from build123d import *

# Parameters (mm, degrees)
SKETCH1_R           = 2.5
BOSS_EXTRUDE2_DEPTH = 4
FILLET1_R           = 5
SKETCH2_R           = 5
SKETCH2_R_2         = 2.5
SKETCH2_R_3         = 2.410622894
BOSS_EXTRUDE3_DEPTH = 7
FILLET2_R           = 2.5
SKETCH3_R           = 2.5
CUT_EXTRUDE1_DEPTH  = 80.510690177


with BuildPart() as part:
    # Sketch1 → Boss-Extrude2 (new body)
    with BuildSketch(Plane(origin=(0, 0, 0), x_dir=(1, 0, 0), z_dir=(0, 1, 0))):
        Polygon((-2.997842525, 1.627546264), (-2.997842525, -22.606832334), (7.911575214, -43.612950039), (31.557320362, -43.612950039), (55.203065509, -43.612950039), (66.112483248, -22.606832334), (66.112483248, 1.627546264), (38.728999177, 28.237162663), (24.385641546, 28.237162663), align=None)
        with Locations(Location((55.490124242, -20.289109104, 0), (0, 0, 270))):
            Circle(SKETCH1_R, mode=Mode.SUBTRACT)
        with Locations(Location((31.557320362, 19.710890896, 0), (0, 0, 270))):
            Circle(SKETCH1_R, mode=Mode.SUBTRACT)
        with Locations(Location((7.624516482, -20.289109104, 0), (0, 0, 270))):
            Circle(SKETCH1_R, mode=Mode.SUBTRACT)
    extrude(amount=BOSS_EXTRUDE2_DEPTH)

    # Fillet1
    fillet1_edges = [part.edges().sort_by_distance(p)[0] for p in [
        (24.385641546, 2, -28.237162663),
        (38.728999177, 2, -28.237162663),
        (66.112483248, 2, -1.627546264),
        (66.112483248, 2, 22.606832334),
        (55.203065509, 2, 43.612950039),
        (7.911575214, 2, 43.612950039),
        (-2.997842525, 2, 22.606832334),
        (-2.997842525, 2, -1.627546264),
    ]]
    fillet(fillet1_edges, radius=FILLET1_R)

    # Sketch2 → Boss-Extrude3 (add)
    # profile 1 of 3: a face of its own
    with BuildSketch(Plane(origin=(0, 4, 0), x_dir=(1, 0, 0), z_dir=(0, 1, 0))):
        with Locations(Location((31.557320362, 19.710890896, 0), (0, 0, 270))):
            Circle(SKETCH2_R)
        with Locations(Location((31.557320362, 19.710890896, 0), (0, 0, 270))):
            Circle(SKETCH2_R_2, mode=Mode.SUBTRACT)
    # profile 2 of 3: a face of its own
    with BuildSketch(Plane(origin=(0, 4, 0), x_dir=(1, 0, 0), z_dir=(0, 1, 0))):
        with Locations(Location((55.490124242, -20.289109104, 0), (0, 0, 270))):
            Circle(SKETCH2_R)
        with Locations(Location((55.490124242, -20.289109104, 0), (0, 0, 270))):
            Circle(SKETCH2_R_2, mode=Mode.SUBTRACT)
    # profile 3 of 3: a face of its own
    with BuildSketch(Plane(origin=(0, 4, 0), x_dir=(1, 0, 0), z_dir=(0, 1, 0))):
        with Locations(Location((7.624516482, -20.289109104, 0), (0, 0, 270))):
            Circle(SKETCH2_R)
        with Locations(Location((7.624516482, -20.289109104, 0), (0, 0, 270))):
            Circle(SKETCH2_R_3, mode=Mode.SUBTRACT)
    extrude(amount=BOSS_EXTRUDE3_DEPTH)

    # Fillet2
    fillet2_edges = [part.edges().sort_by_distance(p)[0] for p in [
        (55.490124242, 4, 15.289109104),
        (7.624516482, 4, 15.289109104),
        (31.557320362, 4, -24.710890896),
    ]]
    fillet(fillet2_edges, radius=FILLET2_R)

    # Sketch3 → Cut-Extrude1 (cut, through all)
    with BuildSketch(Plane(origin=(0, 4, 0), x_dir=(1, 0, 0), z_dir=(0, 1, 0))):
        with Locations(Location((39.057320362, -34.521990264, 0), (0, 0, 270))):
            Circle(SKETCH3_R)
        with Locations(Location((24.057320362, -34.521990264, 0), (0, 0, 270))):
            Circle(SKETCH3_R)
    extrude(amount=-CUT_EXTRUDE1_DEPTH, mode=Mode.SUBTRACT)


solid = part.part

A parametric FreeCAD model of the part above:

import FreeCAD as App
import Part
import Sketcher

V = App.Vector


def edges_at(feature, points):
    """Names of the edges that pass closest to the given points."""
    edges = feature.Shape.Edges
    near = lambda p: min(range(len(edges)), key=lambda i: edges[i].distToShape(Part.Vertex(*p))[0])
    return sorted({f"Edge{near(p) + 1}" for p in points})

doc = App.newDocument("Part")
body = doc.addObject("PartDesign::Body", "Body")

sketch1 = body.newObject("Sketcher::SketchObject", "Sketch")
sketch1.AttachmentSupport = (doc.getObject("XZ_Plane"), [""])
sketch1.MapMode = "FlatFace"
sketch1.addGeometry(Part.LineSegment(V(-2.997843, -1.627546, 0), V(-2.997843, 22.606832, 0)), False)
sketch1.addGeometry(Part.LineSegment(V(-2.997843, 22.606832, 0), V(7.911575, 43.61295, 0)), False)
sketch1.addGeometry(Part.LineSegment(V(7.911575, 43.61295, 0), V(55.203066, 43.61295, 0)), False)
sketch1.addGeometry(Part.LineSegment(V(55.203066, 43.61295, 0), V(66.112483, 22.606832, 0)), False)
sketch1.addGeometry(Part.LineSegment(V(66.112483, 22.606832, 0), V(66.112483, -1.627546, 0)), False)
sketch1.addGeometry(Part.LineSegment(V(66.112483, -1.627546, 0), V(38.728999, -28.237163, 0)), False)
sketch1.addGeometry(Part.LineSegment(V(38.728999, -28.237163, 0), V(24.385642, -28.237163, 0)), False)
sketch1.addGeometry(Part.LineSegment(V(24.385642, -28.237163, 0), V(-2.997843, -1.627546, 0)), False)
sketch1.addGeometry(Part.Circle(V(7.624516, 20.289109, 0), V(0, 0, 1), 2.5), False)
sketch1.addGeometry(Part.Circle(V(55.490124, 20.289109, 0), V(0, 0, 1), 2.5), False)
sketch1.addGeometry(Part.Circle(V(31.55732, -19.710891, 0), V(0, 0, 1), 2.5), False)
sketch1.addConstraint(Sketcher.Constraint("Coincident", 0, 2, 1, 1))
sketch1.addConstraint(Sketcher.Constraint("Coincident", 1, 2, 2, 1))
sketch1.addConstraint(Sketcher.Constraint("Coincident", 2, 2, 3, 1))
sketch1.addConstraint(Sketcher.Constraint("Coincident", 3, 2, 4, 1))
sketch1.addConstraint(Sketcher.Constraint("Coincident", 4, 2, 5, 1))
sketch1.addConstraint(Sketcher.Constraint("Coincident", 5, 2, 6, 1))
sketch1.addConstraint(Sketcher.Constraint("Coincident", 6, 2, 7, 1))
sketch1.addConstraint(Sketcher.Constraint("Coincident", 7, 2, 0, 1))
sketch1.addConstraint(Sketcher.Constraint("Vertical", 0))
sketch1.addConstraint(Sketcher.Constraint("Horizontal", 2))
sketch1.addConstraint(Sketcher.Constraint("Vertical", 4))
sketch1.addConstraint(Sketcher.Constraint("Horizontal", 6))
sketch1.addConstraint(Sketcher.Constraint("Equal", 8, 9))
sketch1.addConstraint(Sketcher.Constraint("Equal", 9, 10))
sketch1.addConstraint(Sketcher.Constraint("Horizontal", 8, 3, 9, 3))
sketch1.addConstraint(Sketcher.Constraint("Horizontal", 0, 2, 3, 2))
sketch1.addConstraint(Sketcher.Constraint("Horizontal", 4, 2, 7, 2))
sketch1.addConstraint(Sketcher.Constraint("Equal", 1, 3))
sketch1.addConstraint(Sketcher.Constraint("Equal", 5, 7))
sketch1.addConstraint(Sketcher.Constraint("Diameter", 8, 5.0))
sketch1.addConstraint(Sketcher.Constraint("DistanceY", 10, 3, 8, 3, 40.0))
sketch1.addConstraint(Sketcher.Constraint("DistanceX", -1, 1, 5, 2, 38.728999))
sketch1.addConstraint(Sketcher.Constraint("DistanceX", 2, 1, 2, 2, 47.29149))
sketch1.addConstraint(Sketcher.Constraint("DistanceY", 0, 1, 0, 2, 24.234379))
sketch1.addConstraint(Sketcher.Constraint("Distance", 5, 38.182809))
sketch1.addConstraint(Sketcher.Constraint("DistanceX", 6, 2, 6, 1, 14.343358))
sketch1.addConstraint(Sketcher.Constraint("DistanceY", -1, 1, 8, 3, 20.289109))
sketch1.addConstraint(Sketcher.Constraint("DistanceX", -1, 1, 10, 3, 31.55732))
sketch1.addConstraint(Sketcher.Constraint("DistanceY", -1, 1, 1, 2, 43.61295))
sketch1.addConstraint(Sketcher.Constraint("DistanceX", 0, 2, 8, 3, 10.622359))
sketch1.addConstraint(Sketcher.Constraint("DistanceX", 8, 3, 1, 2, 0.287059))
sketch1.addConstraint(Sketcher.Constraint("DistanceX", 1, 2, 9, 3, 47.578549))
sketch1.addConstraint(Sketcher.Constraint("DistanceY", 5, 2, 10, 3, 8.526272))
pad1 = body.newObject("PartDesign::Pad", "Pad")
pad1.Profile = sketch1
pad1.Length = 4
pad1.Reversed = True
doc.recompute()

fillet = body.newObject("PartDesign::Fillet", "Fillet")
fillet.Base = (pad1, edges_at(pad1, [
    (24.386, 2, -28.237),
    (38.729, 2, -28.237),
    (66.112, 2, -1.628),
    (66.112, 2, 22.607),
    (55.203, 2, 43.613),
    (7.912, 2, 43.613),
    (-2.998, 2, 22.607),
    (-2.998, 2, -1.628),
]))
fillet.Radius = 5

sketch2 = body.newObject("Sketcher::SketchObject", "Sketch001")
sketch2.AttachmentSupport = (doc.getObject("XZ_Plane"), [""])
sketch2.MapMode = "FlatFace"
sketch2.AttachmentOffset = App.Placement(V(0, 0, -4), App.Rotation())
sketch2.addGeometry(Part.Circle(V(31.55732, -19.710891, 0), V(0, 0, 1), 5), False)
sketch2.addGeometry(Part.Circle(V(31.55732, -19.710891, 0), V(0, 0, 1), 2.5), False)
sketch2.addGeometry(Part.Circle(V(55.490124, 20.289109, 0), V(0, 0, 1), 5), False)
sketch2.addGeometry(Part.Circle(V(55.490124, 20.289109, 0), V(0, 0, 1), 2.5), False)
sketch2.addGeometry(Part.Circle(V(7.624516, 20.289109, 0), V(0, 0, 1), 5), False)
sketch2.addGeometry(Part.Circle(V(7.624516, 20.289109, 0), V(0, 0, 1), 2.410623), False)
sketch2.addConstraint(Sketcher.Constraint("Coincident", 1, 3, 0, 3))
sketch2.addConstraint(Sketcher.Constraint("Coincident", 3, 3, 2, 3))
sketch2.addConstraint(Sketcher.Constraint("Coincident", 5, 3, 4, 3))
sketch2.addConstraint(Sketcher.Constraint("Equal", 0, 2))
sketch2.addConstraint(Sketcher.Constraint("Equal", 1, 3))
sketch2.addConstraint(Sketcher.Constraint("Equal", 2, 4))
sketch2.addConstraint(Sketcher.Constraint("Horizontal", 3, 3, 4, 3))
sketch2.addConstraint(Sketcher.Constraint("Diameter", 0, 10.0))
sketch2.addConstraint(Sketcher.Constraint("Diameter", 1, 5.0))
sketch2.addConstraint(Sketcher.Constraint("DistanceY", 0, 3, 2, 3, 40.0))
sketch2.addConstraint(Sketcher.Constraint("Diameter", 5, 4.821246))
sketch2.addConstraint(Sketcher.Constraint("DistanceX", -1, 1, 0, 3, 31.55732))
sketch2.addConstraint(Sketcher.Constraint("DistanceY", 0, 3, -1, 1, 19.710891))
sketch2.addConstraint(Sketcher.Constraint("DistanceX", -1, 1, 2, 3, 55.490124))
sketch2.addConstraint(Sketcher.Constraint("DistanceX", -1, 1, 4, 3, 7.624516))
pad2 = body.newObject("PartDesign::Pad", "Pad001")
pad2.Profile = sketch2
pad2.Length = 7
pad2.Reversed = True
doc.recompute()

fillet2 = body.newObject("PartDesign::Fillet", "Fillet001")
fillet2.Base = (pad2, edges_at(pad2, [(55.49, 4, 15.289), (7.625, 4, 15.289), (31.557, 4, -24.711)]))
fillet2.Radius = 2.5

sketch3 = body.newObject("Sketcher::SketchObject", "Sketch002")
sketch3.AttachmentSupport = (doc.getObject("XZ_Plane"), [""])
sketch3.MapMode = "FlatFace"
sketch3.AttachmentOffset = App.Placement(V(0, 0, -4), App.Rotation())
sketch3.addGeometry(Part.Circle(V(39.05732, 34.52199, 0), V(0, 0, 1), 2.5), False)
sketch3.addGeometry(Part.Circle(V(24.05732, 34.52199, 0), V(0, 0, 1), 2.5), False)
sketch3.addConstraint(Sketcher.Constraint("Equal", 0, 1))
sketch3.addConstraint(Sketcher.Constraint("Horizontal", 0, 3, 1, 3))
sketch3.addConstraint(Sketcher.Constraint("Diameter", 0, 5.0))
sketch3.addConstraint(Sketcher.Constraint("DistanceX", 1, 3, 0, 3, 15.0))
sketch3.addConstraint(Sketcher.Constraint("DistanceX", -1, 1, 0, 3, 39.05732))
sketch3.addConstraint(Sketcher.Constraint("DistanceY", -1, 1, 0, 3, 34.52199))
pocket1 = body.newObject("PartDesign::Pocket", "Pocket")
pocket1.Profile = sketch3
pocket1.Type = "ThroughAll"
pocket1.Reversed = True

doc.recompute()
